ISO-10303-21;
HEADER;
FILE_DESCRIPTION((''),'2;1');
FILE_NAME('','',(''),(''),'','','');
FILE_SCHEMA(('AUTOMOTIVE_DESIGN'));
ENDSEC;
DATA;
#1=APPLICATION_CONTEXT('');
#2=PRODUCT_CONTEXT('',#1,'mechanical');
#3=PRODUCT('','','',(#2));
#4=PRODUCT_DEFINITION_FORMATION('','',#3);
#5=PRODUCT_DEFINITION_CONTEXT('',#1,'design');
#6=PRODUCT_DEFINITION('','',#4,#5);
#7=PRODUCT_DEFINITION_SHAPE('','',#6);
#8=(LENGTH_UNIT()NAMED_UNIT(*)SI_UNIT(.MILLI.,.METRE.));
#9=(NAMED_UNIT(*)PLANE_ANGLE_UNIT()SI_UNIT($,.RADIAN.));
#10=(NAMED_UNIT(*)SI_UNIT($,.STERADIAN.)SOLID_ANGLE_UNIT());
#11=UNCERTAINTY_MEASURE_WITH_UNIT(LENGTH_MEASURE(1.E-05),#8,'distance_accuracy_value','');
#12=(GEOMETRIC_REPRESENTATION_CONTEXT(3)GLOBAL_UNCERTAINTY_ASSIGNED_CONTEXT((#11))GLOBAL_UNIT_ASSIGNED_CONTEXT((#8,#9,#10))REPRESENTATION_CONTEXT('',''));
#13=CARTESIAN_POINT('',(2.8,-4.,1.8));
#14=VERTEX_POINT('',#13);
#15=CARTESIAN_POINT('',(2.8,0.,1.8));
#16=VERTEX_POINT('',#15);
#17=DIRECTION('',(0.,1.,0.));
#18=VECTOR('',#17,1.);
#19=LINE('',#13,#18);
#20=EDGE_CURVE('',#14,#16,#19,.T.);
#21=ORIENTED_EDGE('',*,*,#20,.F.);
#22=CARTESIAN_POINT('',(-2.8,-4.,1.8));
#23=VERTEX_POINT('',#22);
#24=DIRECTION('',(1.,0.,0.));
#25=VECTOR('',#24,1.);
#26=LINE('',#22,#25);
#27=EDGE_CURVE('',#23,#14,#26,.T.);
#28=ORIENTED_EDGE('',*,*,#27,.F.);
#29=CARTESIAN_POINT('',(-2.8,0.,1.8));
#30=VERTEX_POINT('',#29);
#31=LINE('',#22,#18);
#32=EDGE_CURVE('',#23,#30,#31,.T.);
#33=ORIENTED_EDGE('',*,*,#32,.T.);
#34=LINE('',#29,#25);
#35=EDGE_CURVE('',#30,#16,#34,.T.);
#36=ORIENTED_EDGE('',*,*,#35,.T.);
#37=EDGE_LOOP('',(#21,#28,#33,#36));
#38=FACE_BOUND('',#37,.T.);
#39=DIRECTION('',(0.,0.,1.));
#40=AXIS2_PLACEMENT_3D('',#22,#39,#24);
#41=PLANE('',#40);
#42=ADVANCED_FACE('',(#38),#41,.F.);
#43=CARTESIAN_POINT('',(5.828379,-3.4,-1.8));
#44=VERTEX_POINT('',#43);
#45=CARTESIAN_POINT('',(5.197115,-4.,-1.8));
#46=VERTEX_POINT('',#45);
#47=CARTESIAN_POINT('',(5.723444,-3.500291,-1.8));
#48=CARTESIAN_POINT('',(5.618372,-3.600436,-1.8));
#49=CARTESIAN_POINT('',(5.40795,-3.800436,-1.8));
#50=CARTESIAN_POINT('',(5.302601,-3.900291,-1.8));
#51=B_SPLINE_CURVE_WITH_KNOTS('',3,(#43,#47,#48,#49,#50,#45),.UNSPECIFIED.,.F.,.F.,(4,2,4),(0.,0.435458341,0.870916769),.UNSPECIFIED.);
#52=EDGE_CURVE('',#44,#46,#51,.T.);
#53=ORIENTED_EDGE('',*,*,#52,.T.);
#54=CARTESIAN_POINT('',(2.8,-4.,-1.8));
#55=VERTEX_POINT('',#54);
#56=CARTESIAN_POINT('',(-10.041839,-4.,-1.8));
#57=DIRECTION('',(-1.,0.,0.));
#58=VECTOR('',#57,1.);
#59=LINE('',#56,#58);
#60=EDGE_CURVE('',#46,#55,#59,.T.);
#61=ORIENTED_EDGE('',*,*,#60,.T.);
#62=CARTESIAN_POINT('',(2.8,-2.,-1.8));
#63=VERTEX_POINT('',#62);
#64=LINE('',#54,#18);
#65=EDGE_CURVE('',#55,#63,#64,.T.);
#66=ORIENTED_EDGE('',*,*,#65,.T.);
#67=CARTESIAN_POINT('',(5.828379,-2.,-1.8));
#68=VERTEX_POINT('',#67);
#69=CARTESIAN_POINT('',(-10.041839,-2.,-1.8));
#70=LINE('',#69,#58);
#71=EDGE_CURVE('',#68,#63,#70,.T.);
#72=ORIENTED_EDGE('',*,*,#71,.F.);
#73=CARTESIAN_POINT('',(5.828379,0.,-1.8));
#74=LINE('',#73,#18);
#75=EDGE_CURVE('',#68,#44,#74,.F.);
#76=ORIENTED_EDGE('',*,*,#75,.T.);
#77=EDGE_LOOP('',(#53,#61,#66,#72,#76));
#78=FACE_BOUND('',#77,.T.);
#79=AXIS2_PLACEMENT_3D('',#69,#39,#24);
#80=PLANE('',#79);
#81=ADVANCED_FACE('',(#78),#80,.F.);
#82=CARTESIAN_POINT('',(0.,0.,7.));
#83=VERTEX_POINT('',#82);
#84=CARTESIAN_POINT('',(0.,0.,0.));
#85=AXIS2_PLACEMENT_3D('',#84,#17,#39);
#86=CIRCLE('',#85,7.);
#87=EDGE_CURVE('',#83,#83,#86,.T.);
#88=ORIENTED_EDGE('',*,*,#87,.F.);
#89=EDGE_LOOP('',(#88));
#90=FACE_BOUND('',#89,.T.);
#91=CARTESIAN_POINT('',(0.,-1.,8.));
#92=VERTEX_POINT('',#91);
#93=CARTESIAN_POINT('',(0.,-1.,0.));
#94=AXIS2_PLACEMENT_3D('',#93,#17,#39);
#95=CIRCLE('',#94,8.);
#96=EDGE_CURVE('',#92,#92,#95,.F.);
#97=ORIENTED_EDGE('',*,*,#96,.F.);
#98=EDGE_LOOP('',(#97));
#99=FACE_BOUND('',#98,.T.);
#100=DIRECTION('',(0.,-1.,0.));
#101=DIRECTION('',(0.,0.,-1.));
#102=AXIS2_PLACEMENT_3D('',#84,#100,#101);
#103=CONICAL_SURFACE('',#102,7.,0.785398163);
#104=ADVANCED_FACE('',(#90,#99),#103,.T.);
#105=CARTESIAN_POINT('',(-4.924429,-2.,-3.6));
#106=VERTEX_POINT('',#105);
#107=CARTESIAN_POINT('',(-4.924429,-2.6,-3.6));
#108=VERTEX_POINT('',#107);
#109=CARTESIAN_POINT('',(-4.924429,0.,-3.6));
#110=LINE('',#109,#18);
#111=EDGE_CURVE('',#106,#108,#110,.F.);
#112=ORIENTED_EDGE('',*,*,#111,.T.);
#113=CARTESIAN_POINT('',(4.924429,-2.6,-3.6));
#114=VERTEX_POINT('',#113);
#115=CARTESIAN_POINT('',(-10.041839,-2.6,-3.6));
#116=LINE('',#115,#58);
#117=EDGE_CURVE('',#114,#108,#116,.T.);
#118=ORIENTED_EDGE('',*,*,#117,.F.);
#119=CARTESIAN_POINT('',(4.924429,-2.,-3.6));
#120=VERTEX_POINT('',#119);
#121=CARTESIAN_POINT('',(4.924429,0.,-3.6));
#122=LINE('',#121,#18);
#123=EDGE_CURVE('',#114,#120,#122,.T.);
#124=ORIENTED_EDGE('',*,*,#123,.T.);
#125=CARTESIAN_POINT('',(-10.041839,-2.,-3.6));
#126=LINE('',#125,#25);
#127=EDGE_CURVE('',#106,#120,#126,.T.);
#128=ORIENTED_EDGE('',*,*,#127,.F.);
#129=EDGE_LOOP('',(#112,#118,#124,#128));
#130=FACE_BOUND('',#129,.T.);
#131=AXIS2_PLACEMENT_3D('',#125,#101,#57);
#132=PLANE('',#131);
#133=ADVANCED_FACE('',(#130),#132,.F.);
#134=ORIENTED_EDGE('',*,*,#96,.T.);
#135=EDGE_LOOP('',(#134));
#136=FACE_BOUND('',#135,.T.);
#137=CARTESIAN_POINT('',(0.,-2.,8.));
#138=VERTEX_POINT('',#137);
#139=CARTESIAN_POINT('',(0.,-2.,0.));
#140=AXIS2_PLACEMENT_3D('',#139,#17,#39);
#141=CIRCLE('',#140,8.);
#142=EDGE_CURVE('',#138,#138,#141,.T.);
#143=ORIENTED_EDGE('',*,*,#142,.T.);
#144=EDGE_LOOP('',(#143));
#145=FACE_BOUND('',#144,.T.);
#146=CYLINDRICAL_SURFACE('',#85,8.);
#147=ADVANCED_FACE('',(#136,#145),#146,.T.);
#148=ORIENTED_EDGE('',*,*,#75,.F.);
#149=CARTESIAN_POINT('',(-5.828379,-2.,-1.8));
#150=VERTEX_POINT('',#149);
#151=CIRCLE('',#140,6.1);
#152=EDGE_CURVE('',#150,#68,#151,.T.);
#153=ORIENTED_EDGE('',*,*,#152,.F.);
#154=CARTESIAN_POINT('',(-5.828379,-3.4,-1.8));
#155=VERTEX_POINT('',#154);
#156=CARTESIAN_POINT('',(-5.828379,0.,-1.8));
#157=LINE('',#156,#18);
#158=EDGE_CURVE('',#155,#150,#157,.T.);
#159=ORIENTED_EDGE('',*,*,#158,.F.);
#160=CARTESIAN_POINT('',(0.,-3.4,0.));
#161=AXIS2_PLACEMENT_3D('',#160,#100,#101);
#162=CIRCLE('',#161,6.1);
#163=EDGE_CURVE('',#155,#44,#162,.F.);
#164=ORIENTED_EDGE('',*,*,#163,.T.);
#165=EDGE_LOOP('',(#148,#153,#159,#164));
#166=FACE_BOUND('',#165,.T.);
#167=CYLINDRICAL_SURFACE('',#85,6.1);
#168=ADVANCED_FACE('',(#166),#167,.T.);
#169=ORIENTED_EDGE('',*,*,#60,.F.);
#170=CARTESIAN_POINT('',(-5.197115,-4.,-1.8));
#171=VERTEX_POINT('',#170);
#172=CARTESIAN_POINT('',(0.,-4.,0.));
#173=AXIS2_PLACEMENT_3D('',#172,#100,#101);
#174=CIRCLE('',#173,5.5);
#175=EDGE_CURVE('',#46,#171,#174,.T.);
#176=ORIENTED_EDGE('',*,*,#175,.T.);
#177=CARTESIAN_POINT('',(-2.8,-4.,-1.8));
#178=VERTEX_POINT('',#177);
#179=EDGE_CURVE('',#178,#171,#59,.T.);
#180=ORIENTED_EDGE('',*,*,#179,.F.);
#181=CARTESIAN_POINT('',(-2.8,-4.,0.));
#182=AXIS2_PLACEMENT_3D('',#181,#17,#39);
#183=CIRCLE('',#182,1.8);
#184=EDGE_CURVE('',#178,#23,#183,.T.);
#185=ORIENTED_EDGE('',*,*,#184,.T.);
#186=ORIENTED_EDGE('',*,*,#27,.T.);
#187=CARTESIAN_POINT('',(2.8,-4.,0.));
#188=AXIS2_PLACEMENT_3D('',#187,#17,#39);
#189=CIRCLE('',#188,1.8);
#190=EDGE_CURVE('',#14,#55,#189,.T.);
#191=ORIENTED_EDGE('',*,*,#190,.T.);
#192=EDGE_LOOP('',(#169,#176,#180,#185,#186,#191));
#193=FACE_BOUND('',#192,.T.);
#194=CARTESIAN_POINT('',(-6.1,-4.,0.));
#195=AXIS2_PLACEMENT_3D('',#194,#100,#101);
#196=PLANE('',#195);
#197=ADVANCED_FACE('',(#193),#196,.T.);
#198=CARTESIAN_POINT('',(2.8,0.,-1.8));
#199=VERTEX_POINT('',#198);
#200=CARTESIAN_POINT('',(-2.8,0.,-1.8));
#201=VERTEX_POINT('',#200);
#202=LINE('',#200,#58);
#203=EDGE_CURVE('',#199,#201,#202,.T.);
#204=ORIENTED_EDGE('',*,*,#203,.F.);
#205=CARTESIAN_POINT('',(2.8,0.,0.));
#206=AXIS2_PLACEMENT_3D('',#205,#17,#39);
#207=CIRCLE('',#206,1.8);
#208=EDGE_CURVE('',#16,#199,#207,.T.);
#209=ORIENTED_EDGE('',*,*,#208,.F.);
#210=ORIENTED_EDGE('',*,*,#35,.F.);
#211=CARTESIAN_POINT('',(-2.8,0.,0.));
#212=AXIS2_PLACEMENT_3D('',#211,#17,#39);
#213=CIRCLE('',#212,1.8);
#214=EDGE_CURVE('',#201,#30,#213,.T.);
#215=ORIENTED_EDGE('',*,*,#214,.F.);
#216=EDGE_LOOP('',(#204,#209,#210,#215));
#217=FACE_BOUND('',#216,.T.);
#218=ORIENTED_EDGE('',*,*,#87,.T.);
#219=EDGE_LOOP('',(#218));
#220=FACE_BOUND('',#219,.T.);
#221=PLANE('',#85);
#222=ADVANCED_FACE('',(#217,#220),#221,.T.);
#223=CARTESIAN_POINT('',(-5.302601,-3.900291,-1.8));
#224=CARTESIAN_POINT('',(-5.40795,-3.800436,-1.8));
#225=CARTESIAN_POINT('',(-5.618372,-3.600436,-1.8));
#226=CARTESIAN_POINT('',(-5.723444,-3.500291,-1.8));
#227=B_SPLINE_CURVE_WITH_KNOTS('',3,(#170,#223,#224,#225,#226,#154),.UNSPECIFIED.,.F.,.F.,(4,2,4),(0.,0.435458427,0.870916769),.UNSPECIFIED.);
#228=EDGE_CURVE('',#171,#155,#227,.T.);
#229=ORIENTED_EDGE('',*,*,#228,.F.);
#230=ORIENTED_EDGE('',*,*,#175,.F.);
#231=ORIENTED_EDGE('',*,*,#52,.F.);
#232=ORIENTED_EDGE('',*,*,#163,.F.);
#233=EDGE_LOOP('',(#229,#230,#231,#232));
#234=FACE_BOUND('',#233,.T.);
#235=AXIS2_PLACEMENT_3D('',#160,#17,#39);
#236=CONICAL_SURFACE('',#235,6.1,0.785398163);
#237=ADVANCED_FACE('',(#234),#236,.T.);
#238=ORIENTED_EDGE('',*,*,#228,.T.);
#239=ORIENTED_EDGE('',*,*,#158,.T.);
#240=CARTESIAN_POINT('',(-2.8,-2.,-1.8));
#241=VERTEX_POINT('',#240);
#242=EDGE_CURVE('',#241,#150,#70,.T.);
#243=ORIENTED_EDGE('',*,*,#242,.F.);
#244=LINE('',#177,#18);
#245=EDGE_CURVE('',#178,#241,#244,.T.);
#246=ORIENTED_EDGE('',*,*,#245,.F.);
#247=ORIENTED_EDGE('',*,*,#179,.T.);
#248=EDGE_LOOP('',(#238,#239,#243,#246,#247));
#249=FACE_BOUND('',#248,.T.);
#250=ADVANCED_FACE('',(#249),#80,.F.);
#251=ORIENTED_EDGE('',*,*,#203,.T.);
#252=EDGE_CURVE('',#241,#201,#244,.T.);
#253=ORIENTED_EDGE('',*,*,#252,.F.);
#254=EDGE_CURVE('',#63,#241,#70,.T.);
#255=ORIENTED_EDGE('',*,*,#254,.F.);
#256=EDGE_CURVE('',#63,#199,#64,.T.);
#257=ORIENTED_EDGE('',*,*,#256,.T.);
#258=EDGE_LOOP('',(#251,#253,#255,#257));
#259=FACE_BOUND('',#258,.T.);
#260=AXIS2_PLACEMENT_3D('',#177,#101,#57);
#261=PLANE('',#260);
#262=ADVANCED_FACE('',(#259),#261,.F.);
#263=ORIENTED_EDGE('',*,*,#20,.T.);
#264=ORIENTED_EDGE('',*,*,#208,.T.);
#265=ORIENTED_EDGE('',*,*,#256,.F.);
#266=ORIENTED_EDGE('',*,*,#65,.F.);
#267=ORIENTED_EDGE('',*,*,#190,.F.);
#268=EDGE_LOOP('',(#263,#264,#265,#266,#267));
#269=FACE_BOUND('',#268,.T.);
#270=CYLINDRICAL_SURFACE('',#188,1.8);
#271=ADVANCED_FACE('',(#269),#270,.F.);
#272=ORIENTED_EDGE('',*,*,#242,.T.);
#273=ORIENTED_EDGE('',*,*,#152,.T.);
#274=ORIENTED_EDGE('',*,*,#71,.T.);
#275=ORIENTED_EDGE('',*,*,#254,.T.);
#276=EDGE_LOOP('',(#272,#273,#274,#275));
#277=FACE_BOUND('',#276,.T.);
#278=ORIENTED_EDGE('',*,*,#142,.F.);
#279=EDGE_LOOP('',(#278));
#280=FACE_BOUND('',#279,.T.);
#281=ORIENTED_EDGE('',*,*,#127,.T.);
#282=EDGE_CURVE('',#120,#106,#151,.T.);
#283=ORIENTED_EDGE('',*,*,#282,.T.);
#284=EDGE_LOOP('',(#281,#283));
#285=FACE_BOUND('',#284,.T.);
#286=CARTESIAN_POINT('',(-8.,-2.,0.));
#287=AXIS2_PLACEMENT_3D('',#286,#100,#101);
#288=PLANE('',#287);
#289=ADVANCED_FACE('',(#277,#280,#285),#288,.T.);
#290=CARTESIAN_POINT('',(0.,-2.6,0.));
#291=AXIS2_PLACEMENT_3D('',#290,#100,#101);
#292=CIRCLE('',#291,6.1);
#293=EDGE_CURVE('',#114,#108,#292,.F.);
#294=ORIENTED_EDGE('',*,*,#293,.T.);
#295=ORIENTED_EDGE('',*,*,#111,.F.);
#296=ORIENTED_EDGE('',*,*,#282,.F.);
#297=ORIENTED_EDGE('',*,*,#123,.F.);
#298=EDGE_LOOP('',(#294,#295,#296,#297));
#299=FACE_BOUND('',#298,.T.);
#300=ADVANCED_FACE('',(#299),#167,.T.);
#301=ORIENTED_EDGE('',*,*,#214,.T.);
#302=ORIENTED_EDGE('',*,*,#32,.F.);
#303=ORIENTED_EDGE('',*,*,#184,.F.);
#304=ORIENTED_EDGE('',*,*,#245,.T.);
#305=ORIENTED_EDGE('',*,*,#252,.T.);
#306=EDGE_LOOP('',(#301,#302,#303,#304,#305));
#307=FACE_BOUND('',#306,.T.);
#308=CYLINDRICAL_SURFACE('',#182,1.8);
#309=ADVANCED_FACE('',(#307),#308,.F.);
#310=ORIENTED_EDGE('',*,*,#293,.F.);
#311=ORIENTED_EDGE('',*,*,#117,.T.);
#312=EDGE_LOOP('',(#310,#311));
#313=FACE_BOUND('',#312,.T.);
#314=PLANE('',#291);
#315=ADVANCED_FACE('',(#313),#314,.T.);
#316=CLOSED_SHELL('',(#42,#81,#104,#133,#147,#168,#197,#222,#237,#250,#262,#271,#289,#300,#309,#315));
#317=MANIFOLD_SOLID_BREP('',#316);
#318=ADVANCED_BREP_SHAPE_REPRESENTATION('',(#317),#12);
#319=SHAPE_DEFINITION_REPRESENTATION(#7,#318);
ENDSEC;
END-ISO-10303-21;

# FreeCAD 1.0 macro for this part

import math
import FreeCAD as App
import Part
import Sketcher

V = App.Vector
Q = App.Units.Quantity


def edges_at(feature, points):
    """Names of the edges that pass closest to the given points."""
    edges = feature.Shape.Edges
    near = lambda p: min(range(len(edges)), key=lambda i: edges[i].distToShape(Part.Vertex(*p))[0])
    return sorted({f"Edge{near(p) + 1}" for p in points})

doc = App.newDocument("Part")
body = doc.addObject("PartDesign::Body", "Body")

# Sketch on XY plane
sketch1 = body.newObject("Sketcher::SketchObject", "Sketch")
sketch1.AttachmentSupport = (doc.getObject("XY_Plane"), [""])
sketch1.MapMode = "FlatFace"
sketch1.addGeometry(Part.LineSegment(V(0, 0, 0), V(-8, 0, 0)), False)
sketch1.addGeometry(Part.LineSegment(V(-8, 0, 0), V(-8, -2, 0)), False)
sketch1.addGeometry(Part.LineSegment(V(-8, -2, 0), V(-6.1, -2, 0)), False)
sketch1.addGeometry(Part.LineSegment(V(-6.1, -2, 0), V(-6.1, -4, 0)), False)
sketch1.addGeometry(Part.LineSegment(V(-6.1, -4, 0), V(0, -4, 0)), False)
sketch1.addGeometry(Part.LineSegment(V(0, -4, 0), V(0, 0, 0)), False)
sketch1.addConstraint(Sketcher.Constraint("Coincident", 0, 2, 1, 1))
sketch1.addConstraint(Sketcher.Constraint("Coincident", 1, 2, 2, 1))
sketch1.addConstraint(Sketcher.Constraint("Coincident", 2, 2, 3, 1))
sketch1.addConstraint(Sketcher.Constraint("Coincident", 3, 2, 4, 1))
sketch1.addConstraint(Sketcher.Constraint("Coincident", 4, 2, 5, 1))
sketch1.addConstraint(Sketcher.Constraint("Coincident", 5, 2, 0, 1))
sketch1.addConstraint(Sketcher.Constraint("Horizontal", 0))
sketch1.addConstraint(Sketcher.Constraint("Vertical", 1))
sketch1.addConstraint(Sketcher.Constraint("Horizontal", 2))
sketch1.addConstraint(Sketcher.Constraint("Vertical", 3))
sketch1.addConstraint(Sketcher.Constraint("Horizontal", 4))
sketch1.addConstraint(Sketcher.Constraint("Vertical", 5))
sketch1.addConstraint(Sketcher.Constraint("Coincident", 5, 2, -1, 1))
sketch1.addConstraint(Sketcher.Constraint("Equal", 1, 3))
sketch1.addConstraint(Sketcher.Constraint("DistanceX", 0, 2, 0, 1, Q("8 mm")))
sketch1.addConstraint(Sketcher.Constraint("DistanceY", 1, 2, 1, 1, Q("2 mm")))
sketch1.addConstraint(Sketcher.Constraint("DistanceX", 2, 1, 2, 2, Q("1.9 mm")))
revolution = body.newObject("PartDesign::Revolution", "Revolution")
revolution.Profile = sketch1
revolution.ReferenceAxis = (sketch1, ["V_Axis"])
revolution.Angle = 360

# Sketch on XZ plane
sketch2 = body.newObject("Sketcher::SketchObject", "Sketch001")
sketch2.AttachmentSupport = (doc.getObject("XZ_Plane"), [""])
sketch2.MapMode = "FlatFace"
sketch2.addGeometry(Part.LineSegment(V(2.8, -1.8, 0), V(-2.8, -1.8, 0)), False)
sketch2.addGeometry(Part.ArcOfCircle(Part.Circle(V(-2.8, 0, 0), V(0, 0, 1), 1.8), math.radians(90), math.radians(270)), False)
sketch2.addGeometry(Part.LineSegment(V(-2.8, 1.8, 0), V(2.8, 1.8, 0)), False)
sketch2.addGeometry(Part.ArcOfCircle(Part.Circle(V(2.8, 0, 0), V(0, 0, 1), 1.8), math.radians(-90), math.radians(90)), False)
sketch2.addConstraint(Sketcher.Constraint("Tangent", 0, 2, 1, 2))
sketch2.addConstraint(Sketcher.Constraint("Tangent", 1, 1, 2, 1))
sketch2.addConstraint(Sketcher.Constraint("Tangent", 2, 2, 3, 2))
sketch2.addConstraint(Sketcher.Constraint("Tangent", 3, 1, 0, 1))
sketch2.addConstraint(Sketcher.Constraint("Horizontal", 0))
sketch2.addConstraint(Sketcher.Constraint("Horizontal", 2))
sketch2.addConstraint(Sketcher.Constraint("Symmetric", 1, 3, 3, 3, -1, 1))
sketch2.addConstraint(Sketcher.Constraint("Radius", 1, Q("1.8 mm")))
sketch2.addConstraint(Sketcher.Constraint("DistanceX", 0, 2, 0, 1, Q("5.6 mm")))
pocket1 = body.newObject("PartDesign::Pocket", "Pocket")
pocket1.Profile = sketch2
pocket1.Type = "ThroughAll"
pocket1.Reversed = True

# Sketch on XZ plane
sketch3 = body.newObject("Sketcher::SketchObject", "Sketch002")
sketch3.AttachmentSupport = (doc.getObject("XZ_Plane"), [""])
sketch3.MapMode = "FlatFace"
sketch3.AttachmentOffset = App.Placement(V(0, 0, 4), App.Rotation())
sketch3.addGeometry(Part.LineSegment(V(-10, -1.8, 0), V(-10, -3.6, 0)), False)
sketch3.addGeometry(Part.LineSegment(V(-10, -3.6, 0), V(11.2, -3.6, 0)), False)
sketch3.addGeometry(Part.LineSegment(V(11.2, -3.6, 0), V(11.2, -1.8, 0)), False)
sketch3.addGeometry(Part.LineSegment(V(11.2, -1.8, 0), V(-10, -1.8, 0)), False)
sketch3.addConstraint(Sketcher.Constraint("Coincident", 0, 2, 1, 1))
sketch3.addConstraint(Sketcher.Constraint("Coincident", 1, 2, 2, 1))
sketch3.addConstraint(Sketcher.Constraint("Coincident", 2, 2, 3, 1))
sketch3.addConstraint(Sketcher.Constraint("Coincident", 3, 2, 0, 1))
sketch3.addConstraint(Sketcher.Constraint("Vertical", 0))
sketch3.addConstraint(Sketcher.Constraint("Horizontal", 1))
sketch3.addConstraint(Sketcher.Constraint("Vertical", 2))
sketch3.addConstraint(Sketcher.Constraint("Horizontal", 3))
sketch3.addConstraint(Sketcher.Constraint("DistanceY", 0, 2, 0, 1, Q("1.8 mm")))
sketch3.addConstraint(Sketcher.Constraint("DistanceY", 0, 2, -1, 1, Q("3.6 mm")))
sketch3.addConstraint(Sketcher.Constraint("DistanceX", 1, 1, 1, 2, Q("21.205208 mm")))
sketch3.addConstraint(Sketcher.Constraint("DistanceX", 0, 2, -1, 1, Q("10.041839 mm")))
pocket2 = body.newObject("PartDesign::Pocket", "Pocket001")
pocket2.Profile = sketch3
pocket2.Length = 2

# Sketch on XZ plane
sketch4 = body.newObject("Sketcher::SketchObject", "Sketch003")
sketch4.AttachmentSupport = (doc.getObject("XZ_Plane"), [""])
sketch4.MapMode = "FlatFace"
sketch4.AttachmentOffset = App.Placement(V(0, 0, 4), App.Rotation())
sketch4.addGeometry(Part.LineSegment(V(-10, -2, 0), V(-10, -8, 0)), False)
sketch4.addGeometry(Part.LineSegment(V(-10, -8, 0), V(10, -8, 0)), False)
sketch4.addGeometry(Part.LineSegment(V(10, -8, 0), V(10, -2, 0)), False)
sketch4.addGeometry(Part.LineSegment(V(10, -2, 0), V(-10, -2, 0)), False)
sketch4.addConstraint(Sketcher.Constraint("Coincident", 0, 2, 1, 1))
sketch4.addConstraint(Sketcher.Constraint("Coincident", 1, 2, 2, 1))
sketch4.addConstraint(Sketcher.Constraint("Coincident", 2, 2, 3, 1))
sketch4.addConstraint(Sketcher.Constraint("Coincident", 3, 2, 0, 1))
sketch4.addConstraint(Sketcher.Constraint("Vertical", 0))
sketch4.addConstraint(Sketcher.Constraint("Horizontal", 1))
sketch4.addConstraint(Sketcher.Constraint("Vertical", 2))
sketch4.addConstraint(Sketcher.Constraint("Horizontal", 3))
sketch4.addConstraint(Sketcher.Constraint("DistanceX", 1, 1, 1, 2, Q("20.395215 mm")))
sketch4.addConstraint(Sketcher.Constraint("DistanceY", 0, 2, 0, 1, Q("5.649184 mm")))
sketch4.addConstraint(Sketcher.Constraint("DistanceX", 0, 2, -1, 1, Q("10.228761 mm")))
sketch4.addConstraint(Sketcher.Constraint("DistanceY", 0, 2, -1, 1, Q("7.798781 mm")))
pocket3 = body.newObject("PartDesign::Pocket", "Pocket002")
pocket3.Profile = sketch4
pocket3.Length = 1.4
doc.recompute()

chamfer = body.newObject("PartDesign::Chamfer", "Chamfer")
chamfer.Base = (pocket3, edges_at(pocket3, [(0, 0, -8)]))
chamfer.Size = 1
doc.recompute()

chamfer2 = body.newObject("PartDesign::Chamfer", "Chamfer001")
chamfer2.Base = (chamfer, edges_at(chamfer, [(0, -4, 6.1)]))
chamfer2.Size = 0.6

doc.recompute()
